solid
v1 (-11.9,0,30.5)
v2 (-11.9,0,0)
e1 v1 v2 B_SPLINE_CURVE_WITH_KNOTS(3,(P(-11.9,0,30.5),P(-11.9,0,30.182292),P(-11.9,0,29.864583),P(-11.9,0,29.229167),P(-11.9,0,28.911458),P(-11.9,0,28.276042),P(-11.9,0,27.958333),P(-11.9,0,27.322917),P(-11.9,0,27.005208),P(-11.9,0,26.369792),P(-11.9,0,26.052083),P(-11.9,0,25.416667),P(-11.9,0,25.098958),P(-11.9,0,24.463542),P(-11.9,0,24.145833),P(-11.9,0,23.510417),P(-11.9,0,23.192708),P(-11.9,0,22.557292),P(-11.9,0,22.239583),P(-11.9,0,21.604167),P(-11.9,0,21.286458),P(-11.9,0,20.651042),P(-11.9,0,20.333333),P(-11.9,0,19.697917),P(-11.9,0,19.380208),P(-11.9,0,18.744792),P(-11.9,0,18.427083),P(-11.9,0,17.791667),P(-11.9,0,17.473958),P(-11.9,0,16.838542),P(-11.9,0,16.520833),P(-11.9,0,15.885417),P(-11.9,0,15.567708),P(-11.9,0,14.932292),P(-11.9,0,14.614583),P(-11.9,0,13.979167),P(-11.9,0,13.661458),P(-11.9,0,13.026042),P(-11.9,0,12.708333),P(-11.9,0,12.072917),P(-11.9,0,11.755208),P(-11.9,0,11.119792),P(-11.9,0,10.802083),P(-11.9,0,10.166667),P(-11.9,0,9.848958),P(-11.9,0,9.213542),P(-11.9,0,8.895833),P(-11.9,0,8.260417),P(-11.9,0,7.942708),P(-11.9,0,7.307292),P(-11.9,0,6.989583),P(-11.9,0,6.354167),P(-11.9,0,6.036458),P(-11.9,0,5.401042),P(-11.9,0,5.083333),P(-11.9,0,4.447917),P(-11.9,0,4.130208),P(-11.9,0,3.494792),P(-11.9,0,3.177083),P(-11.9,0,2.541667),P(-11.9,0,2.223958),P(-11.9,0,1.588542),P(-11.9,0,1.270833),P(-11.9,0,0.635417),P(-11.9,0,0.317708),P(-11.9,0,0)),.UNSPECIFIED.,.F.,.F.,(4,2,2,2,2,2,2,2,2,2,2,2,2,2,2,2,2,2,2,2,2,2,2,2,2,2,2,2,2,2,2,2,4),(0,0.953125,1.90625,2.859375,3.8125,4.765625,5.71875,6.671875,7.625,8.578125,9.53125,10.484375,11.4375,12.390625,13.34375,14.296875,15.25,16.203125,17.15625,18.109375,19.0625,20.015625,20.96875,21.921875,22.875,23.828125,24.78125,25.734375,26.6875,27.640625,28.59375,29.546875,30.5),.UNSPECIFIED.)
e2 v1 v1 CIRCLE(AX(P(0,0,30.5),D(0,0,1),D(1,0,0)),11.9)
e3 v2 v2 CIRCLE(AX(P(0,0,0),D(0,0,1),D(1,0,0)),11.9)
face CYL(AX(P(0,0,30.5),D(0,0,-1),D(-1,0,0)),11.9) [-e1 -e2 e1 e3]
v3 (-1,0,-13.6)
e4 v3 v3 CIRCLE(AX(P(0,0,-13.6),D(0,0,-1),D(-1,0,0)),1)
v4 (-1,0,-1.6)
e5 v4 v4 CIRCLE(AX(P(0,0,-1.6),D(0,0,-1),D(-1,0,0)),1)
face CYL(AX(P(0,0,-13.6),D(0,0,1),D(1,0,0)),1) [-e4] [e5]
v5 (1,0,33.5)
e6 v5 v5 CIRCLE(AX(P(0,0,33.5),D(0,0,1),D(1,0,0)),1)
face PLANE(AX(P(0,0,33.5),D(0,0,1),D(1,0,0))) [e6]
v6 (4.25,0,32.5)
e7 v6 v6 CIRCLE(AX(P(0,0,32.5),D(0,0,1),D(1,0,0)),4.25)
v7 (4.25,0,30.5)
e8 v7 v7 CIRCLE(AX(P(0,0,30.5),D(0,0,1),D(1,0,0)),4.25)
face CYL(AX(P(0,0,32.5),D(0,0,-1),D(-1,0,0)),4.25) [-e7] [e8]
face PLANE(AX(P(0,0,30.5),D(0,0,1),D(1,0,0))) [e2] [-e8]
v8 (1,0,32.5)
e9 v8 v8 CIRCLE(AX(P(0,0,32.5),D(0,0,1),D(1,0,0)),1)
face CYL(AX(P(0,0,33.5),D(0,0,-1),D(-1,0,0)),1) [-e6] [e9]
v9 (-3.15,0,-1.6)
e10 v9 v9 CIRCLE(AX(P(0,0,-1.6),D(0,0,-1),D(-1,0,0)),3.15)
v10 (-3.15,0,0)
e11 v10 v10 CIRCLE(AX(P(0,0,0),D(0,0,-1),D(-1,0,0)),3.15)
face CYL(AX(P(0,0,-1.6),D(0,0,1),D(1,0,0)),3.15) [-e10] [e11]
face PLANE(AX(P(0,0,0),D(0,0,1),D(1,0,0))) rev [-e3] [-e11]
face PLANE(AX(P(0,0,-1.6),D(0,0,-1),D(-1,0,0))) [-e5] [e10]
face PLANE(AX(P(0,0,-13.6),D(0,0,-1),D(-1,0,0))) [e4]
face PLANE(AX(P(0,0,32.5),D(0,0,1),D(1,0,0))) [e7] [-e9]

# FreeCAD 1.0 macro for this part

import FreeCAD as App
import Part
import Sketcher
from FreeCAD import Vector
Q = App.Units.Quantity

doc = App.newDocument("Part")
params = doc.addObject("Spreadsheet::Sheet", "Params")
for row, (alias, value) in enumerate([
    ("sketch1_diameter", "23.8 mm"),
    ("pad1_length", "30.5 mm"),
    ("sketch2_diameter", "8.5 mm"),
    ("pad2_length", "2 mm"),
    ("sketch3_diameter", "6.3 mm"),
    ("pad3_length", "1.6 mm"),
    ("sketch4_diameter", "2 mm"),
    ("pad4_length", "12 mm"),
    ("sketch5_diameter", "2 mm"),
    ("pad5_length", "1 mm"),
], start=1):
    params.set(f"A{row}", alias)
    params.set(f"B{row}", "=" + value)
    params.setAlias(f"B{row}", alias)

body = doc.addObject("PartDesign::Body", "Body")

# Sketch on XY plane
sketch1 = body.newObject("Sketcher::SketchObject", "Sketch")
sketch1.AttachmentSupport = (doc.getObject("XY_Plane"), [""])
sketch1.MapMode = "FlatFace"
sketch1.addGeometry(Part.Circle(Vector(0, 0, 0), Vector(0, 0, 1), 12), False)
sketch1.addConstraint(Sketcher.Constraint("Coincident", 0, 3, -1, 1))
sketch1.addConstraint(Sketcher.Constraint("Diameter", 0, Q("23.8 mm")))
sketch1.setExpression("Constraints[1]", "Params.sketch1_diameter")
pad1 = body.newObject("PartDesign::Pad", "Pad")
pad1.Profile = sketch1
pad1.setExpression("Length", "Params.pad1_length")

# Sketch on XY plane
sketch2 = body.newObject("Sketcher::SketchObject", "Sketch001")
sketch2.AttachmentSupport = (doc.getObject("XY_Plane"), [""])
sketch2.MapMode = "FlatFace"
sketch2.AttachmentOffset = App.Placement(Vector(0, 0, 30.5), App.Rotation())
sketch2.addGeometry(Part.Circle(Vector(0, 0, 0), Vector(0, 0, 1), 4.2), False)
sketch2.addConstraint(Sketcher.Constraint("Coincident", 0, 3, -1, 1))
sketch2.addConstraint(Sketcher.Constraint("Diameter", 0, Q("8.5 mm")))
sketch2.setExpression("Constraints[1]", "Params.sketch2_diameter")
pad2 = body.newObject("PartDesign::Pad", "Pad001")
pad2.Profile = sketch2
pad2.setExpression("Length", "Params.pad2_length")

# Sketch on XY plane
sketch3 = body.newObject("Sketcher::SketchObject", "Sketch002")
sketch3.AttachmentSupport = (doc.getObject("XY_Plane"), [""])
sketch3.MapMode = "FlatFace"
sketch3.addGeometry(Part.Circle(Vector(0, 0, 0), Vector(0, 0, 1), 3.1), False)
sketch3.addConstraint(Sketcher.Constraint("Coincident", 0, 3, -1, 1))
sketch3.addConstraint(Sketcher.Constraint("Diameter", 0, Q("6.3 mm")))
sketch3.setExpression("Constraints[1]", "Params.sketch3_diameter")
pad3 = body.newObject("PartDesign::Pad", "Pad002")
pad3.Profile = sketch3
pad3.setExpression("Length", "Params.pad3_length")
pad3.Reversed = True

# Sketch on XY plane
sketch4 = body.newObject("Sketcher::SketchObject", "Sketch003")
sketch4.AttachmentSupport = (doc.getObject("XY_Plane"), [""])
sketch4.MapMode = "FlatFace"
sketch4.AttachmentOffset = App.Placement(Vector(0, 0, -1.6), App.Rotation())
sketch4.addGeometry(Part.Circle(Vector(0, 0, 0), Vector(0, 0, 1), 1), False)
sketch4.addConstraint(Sketcher.Constraint("Coincident", 0, 3, -1, 1))
sketch4.addConstraint(Sketcher.Constraint("Diameter", 0, Q("2 mm")))
sketch4.setExpression("Constraints[1]", "Params.sketch4_diameter")
pad4 = body.newObject("PartDesign::Pad", "Pad003")
pad4.Profile = sketch4
pad4.setExpression("Length", "Params.pad4_length")
pad4.Reversed = True

# Sketch on XY plane
sketch5 = body.newObject("Sketcher::SketchObject", "Sketch004")
sketch5.AttachmentSupport = (doc.getObject("XY_Plane"), [""])
sketch5.MapMode = "FlatFace"
sketch5.AttachmentOffset = App.Placement(Vector(0, 0, 33.5), App.Rotation())
sketch5.addGeometry(Part.Circle(Vector(0, 0, 0), Vector(0, 0, 1), 1), False)
sketch5.addConstraint(Sketcher.Constraint("Coincident", 0, 3, -1, 1))
sketch5.addConstraint(Sketcher.Constraint("Diameter", 0, Q("2 mm")))
sketch5.setExpression("Constraints[1]", "Params.sketch5_diameter")
pad5 = body.newObject("PartDesign::Pad", "Pad004")
pad5.Profile = sketch5
pad5.setExpression("Length", "Params.pad5_length")
pad5.Reversed = True

doc.recompute()
